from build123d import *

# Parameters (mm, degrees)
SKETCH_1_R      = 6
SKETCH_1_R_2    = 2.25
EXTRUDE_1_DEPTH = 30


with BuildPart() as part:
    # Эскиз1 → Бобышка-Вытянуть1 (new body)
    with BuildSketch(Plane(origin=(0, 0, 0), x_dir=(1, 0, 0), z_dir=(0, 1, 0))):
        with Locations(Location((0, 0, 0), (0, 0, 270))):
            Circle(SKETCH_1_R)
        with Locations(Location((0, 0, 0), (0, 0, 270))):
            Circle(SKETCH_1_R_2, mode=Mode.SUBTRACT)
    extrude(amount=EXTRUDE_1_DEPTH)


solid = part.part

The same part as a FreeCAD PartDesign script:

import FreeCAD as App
import Part
import Sketcher

doc = App.newDocument("Part")
body = doc.addObject("PartDesign::Body", "Body")

# Sketch on XZ plane
sketch1 = doc.addObject("Sketcher::SketchObject", "Sketch")
body.addObject(sketch1)
sketch1.AttachmentSupport = (doc.XZ_Plane, [""])
sketch1.MapMode = "FlatFace"
sketch1.addGeometry(Part.Circle(App.Vector(0, 0, 0), App.Vector(0, 0, 1), 6), False)
sketch1.addGeometry(Part.Circle(App.Vector(0, 0, 0), App.Vector(0, 0, 1), 2.2), False)
sketch1.addConstraint(Sketcher.Constraint("Coincident", 0, 3, -1, 1))
sketch1.addConstraint(Sketcher.Constraint("Coincident", 1, 3, -1, 1))
sketch1.addConstraint(Sketcher.Constraint("Diameter", 0, 12.0))
sketch1.addConstraint(Sketcher.Constraint("Diameter", 1, 4.5))
pad1 = doc.addObject("PartDesign::Pad", "Pad")
body.addObject(pad1)
pad1.Profile = sketch1
pad1.Length = 30
pad1.Reversed = True

doc.recompute()
